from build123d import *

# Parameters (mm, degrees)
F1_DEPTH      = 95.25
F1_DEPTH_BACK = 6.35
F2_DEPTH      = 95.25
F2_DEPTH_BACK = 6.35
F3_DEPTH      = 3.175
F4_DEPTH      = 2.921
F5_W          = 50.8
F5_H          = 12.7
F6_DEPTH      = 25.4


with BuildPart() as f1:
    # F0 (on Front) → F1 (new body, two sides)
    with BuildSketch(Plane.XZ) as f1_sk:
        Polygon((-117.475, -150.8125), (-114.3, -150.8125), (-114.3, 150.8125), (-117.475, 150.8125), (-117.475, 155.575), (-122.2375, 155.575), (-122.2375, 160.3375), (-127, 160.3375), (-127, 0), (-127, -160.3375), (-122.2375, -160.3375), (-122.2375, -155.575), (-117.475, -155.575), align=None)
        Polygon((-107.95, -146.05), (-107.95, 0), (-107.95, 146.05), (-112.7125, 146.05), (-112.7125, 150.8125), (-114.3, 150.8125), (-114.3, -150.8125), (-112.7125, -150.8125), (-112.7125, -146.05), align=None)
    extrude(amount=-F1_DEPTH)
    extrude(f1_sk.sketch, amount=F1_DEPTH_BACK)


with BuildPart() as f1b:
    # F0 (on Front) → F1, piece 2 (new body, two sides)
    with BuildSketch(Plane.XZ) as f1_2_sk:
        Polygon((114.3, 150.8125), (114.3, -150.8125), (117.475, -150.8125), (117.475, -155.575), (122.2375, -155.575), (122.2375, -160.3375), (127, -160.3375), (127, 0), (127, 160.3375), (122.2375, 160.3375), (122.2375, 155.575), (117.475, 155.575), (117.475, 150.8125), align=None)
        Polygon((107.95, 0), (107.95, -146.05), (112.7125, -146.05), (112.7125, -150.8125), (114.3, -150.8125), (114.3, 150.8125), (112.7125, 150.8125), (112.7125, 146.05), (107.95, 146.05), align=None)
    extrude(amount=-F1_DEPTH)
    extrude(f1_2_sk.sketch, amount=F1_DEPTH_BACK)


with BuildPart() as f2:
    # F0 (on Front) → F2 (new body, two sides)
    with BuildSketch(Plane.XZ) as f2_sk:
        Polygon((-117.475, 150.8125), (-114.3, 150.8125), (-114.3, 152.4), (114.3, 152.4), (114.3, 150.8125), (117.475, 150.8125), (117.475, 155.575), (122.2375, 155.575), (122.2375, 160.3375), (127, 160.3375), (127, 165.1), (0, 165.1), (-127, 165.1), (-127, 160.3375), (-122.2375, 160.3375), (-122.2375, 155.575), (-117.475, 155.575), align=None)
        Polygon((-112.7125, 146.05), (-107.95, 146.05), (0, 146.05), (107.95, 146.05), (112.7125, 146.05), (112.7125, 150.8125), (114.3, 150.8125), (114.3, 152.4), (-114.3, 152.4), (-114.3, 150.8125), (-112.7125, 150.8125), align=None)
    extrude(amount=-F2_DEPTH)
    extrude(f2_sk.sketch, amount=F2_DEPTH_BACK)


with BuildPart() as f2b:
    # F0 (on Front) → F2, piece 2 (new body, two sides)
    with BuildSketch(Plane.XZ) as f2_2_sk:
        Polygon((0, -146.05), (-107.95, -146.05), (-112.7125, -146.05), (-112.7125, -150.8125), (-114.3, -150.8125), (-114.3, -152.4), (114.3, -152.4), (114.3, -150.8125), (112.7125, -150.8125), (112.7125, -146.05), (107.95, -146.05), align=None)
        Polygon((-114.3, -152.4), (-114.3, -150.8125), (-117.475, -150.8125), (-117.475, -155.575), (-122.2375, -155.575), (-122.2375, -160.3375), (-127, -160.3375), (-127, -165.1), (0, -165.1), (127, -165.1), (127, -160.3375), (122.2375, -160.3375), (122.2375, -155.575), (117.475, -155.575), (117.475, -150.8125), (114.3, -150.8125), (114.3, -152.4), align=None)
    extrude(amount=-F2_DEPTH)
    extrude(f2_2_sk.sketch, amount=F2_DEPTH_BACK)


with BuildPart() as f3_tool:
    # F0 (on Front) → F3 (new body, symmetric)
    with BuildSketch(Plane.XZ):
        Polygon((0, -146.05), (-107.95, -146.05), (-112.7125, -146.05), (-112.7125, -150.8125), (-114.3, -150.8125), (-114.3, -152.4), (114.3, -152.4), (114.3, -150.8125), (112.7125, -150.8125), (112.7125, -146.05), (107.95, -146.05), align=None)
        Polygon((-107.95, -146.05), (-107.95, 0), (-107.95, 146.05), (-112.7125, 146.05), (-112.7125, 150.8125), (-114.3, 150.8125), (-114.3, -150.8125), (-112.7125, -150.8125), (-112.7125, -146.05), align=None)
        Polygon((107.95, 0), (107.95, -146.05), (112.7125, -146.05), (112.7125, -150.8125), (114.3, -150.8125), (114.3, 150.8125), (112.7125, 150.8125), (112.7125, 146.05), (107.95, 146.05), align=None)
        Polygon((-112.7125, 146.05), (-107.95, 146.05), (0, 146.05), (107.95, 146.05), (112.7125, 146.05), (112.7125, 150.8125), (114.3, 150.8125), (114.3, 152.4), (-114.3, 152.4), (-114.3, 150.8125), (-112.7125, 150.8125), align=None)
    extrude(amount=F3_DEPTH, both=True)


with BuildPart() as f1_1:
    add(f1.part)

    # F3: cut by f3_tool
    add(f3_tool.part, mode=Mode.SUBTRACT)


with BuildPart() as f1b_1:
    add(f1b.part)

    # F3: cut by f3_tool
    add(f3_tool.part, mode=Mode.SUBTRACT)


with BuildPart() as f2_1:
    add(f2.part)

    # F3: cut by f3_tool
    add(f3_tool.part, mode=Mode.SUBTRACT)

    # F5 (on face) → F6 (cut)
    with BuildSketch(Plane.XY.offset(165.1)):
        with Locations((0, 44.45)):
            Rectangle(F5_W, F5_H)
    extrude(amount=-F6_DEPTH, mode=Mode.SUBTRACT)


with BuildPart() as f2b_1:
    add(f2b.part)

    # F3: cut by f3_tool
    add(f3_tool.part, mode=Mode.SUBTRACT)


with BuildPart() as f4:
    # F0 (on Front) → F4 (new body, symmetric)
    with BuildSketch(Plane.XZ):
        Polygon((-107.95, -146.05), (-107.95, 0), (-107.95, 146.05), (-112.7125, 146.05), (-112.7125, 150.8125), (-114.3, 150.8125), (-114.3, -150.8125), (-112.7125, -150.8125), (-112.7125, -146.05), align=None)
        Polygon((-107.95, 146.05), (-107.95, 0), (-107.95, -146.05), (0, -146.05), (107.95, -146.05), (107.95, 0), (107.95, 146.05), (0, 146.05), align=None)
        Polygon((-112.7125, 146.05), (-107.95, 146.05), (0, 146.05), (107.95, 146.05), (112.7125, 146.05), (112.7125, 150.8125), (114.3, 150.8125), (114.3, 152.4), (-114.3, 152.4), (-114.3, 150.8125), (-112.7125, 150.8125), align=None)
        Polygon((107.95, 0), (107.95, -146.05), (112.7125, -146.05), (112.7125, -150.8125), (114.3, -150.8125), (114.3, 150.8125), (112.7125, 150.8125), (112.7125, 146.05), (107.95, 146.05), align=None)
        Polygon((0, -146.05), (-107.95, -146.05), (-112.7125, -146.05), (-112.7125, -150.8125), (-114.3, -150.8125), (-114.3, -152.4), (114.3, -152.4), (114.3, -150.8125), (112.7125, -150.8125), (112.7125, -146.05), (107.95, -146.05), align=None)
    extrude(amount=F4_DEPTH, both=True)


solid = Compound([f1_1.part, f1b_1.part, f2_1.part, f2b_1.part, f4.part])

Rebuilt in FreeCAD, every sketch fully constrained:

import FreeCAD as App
import Part
import Sketcher
Q = App.Units.Quantity

doc = App.newDocument("Part")
body = doc.addObject("PartDesign::Body", "Body")

sketch1 = body.newObject("Sketcher::SketchObject", "Sketch")
sketch1.AttachmentSupport = (doc.getObject("XZ_Plane"), [""])
sketch1.MapMode = "FlatFace"
sketch1.addGeometry(Part.LineSegment(App.Vector(-117.5, -150.8, 0), App.Vector(-112.7, -150.8, 0)), False)
sketch1.addGeometry(Part.LineSegment(App.Vector(-112.7, -150.8, 0), App.Vector(-112.7, -146.1, 0)), False)
sketch1.addGeometry(Part.LineSegment(App.Vector(-112.7, -146.1, 0), App.Vector(-108, -146.1, 0)), False)
sketch1.addGeometry(Part.LineSegment(App.Vector(-108, -146.1, 0), App.Vector(-108, 146.1, 0)), False)
sketch1.addGeometry(Part.LineSegment(App.Vector(-108, 146.1, 0), App.Vector(-112.7, 146.1, 0)), False)
sketch1.addGeometry(Part.LineSegment(App.Vector(-112.7, 146.1, 0), App.Vector(-112.7, 150.8, 0)), False)
sketch1.addGeometry(Part.LineSegment(App.Vector(-112.7, 150.8, 0), App.Vector(-117.5, 150.8, 0)), False)
sketch1.addGeometry(Part.LineSegment(App.Vector(-117.5, 150.8, 0), App.Vector(-117.5, 155.6, 0)), False)
sketch1.addGeometry(Part.LineSegment(App.Vector(-117.5, 155.6, 0), App.Vector(-122.2, 155.6, 0)), False)
sketch1.addGeometry(Part.LineSegment(App.Vector(-122.2, 155.6, 0), App.Vector(-122.2, 160.3, 0)), False)
sketch1.addGeometry(Part.LineSegment(App.Vector(-122.2, 160.3, 0), App.Vector(-127, 160.3, 0)), False)
sketch1.addGeometry(Part.LineSegment(App.Vector(-127, 160.3, 0), App.Vector(-127, -160.3, 0)), False)
sketch1.addGeometry(Part.LineSegment(App.Vector(-127, -160.3, 0), App.Vector(-122.2, -160.3, 0)), False)
sketch1.addGeometry(Part.LineSegment(App.Vector(-122.2, -160.3, 0), App.Vector(-122.2, -155.6, 0)), False)
sketch1.addGeometry(Part.LineSegment(App.Vector(-122.2, -155.6, 0), App.Vector(-117.5, -155.6, 0)), False)
sketch1.addGeometry(Part.LineSegment(App.Vector(-117.5, -155.6, 0), App.Vector(-117.5, -150.8, 0)), False)
sketch1.addConstraint(Sketcher.Constraint("Coincident", 0, 2, 1, 1))
sketch1.addConstraint(Sketcher.Constraint("Coincident", 1, 2, 2, 1))
sketch1.addConstraint(Sketcher.Constraint("Coincident", 2, 2, 3, 1))
sketch1.addConstraint(Sketcher.Constraint("Coincident", 3, 2, 4, 1))
sketch1.addConstraint(Sketcher.Constraint("Coincident", 4, 2, 5, 1))
sketch1.addConstraint(Sketcher.Constraint("Coincident", 5, 2, 6, 1))
sketch1.addConstraint(Sketcher.Constraint("Coincident", 6, 2, 7, 1))
sketch1.addConstraint(Sketcher.Constraint("Coincident", 7, 2, 8, 1))
sketch1.addConstraint(Sketcher.Constraint("Coincident", 8, 2, 9, 1))
sketch1.addConstraint(Sketcher.Constraint("Coincident", 9, 2, 10, 1))
sketch1.addConstraint(Sketcher.Constraint("Coincident", 10, 2, 11, 1))
sketch1.addConstraint(Sketcher.Constraint("Coincident", 11, 2, 12, 1))
sketch1.addConstraint(Sketcher.Constraint("Coincident", 12, 2, 13, 1))
sketch1.addConstraint(Sketcher.Constraint("Coincident", 13, 2, 14, 1))
sketch1.addConstraint(Sketcher.Constraint("Coincident", 14, 2, 15, 1))
sketch1.addConstraint(Sketcher.Constraint("Coincident", 15, 2, 0, 1))
sketch1.addConstraint(Sketcher.Constraint("Horizontal", 0))
sketch1.addConstraint(Sketcher.Constraint("Vertical", 1))
sketch1.addConstraint(Sketcher.Constraint("Horizontal", 2))
sketch1.addConstraint(Sketcher.Constraint("Vertical", 3))
sketch1.addConstraint(Sketcher.Constraint("Horizontal", 4))
sketch1.addConstraint(Sketcher.Constraint("Vertical", 5))
sketch1.addConstraint(Sketcher.Constraint("Horizontal", 6))
sketch1.addConstraint(Sketcher.Constraint("Vertical", 7))
sketch1.addConstraint(Sketcher.Constraint("Horizontal", 8))
sketch1.addConstraint(Sketcher.Constraint("Vertical", 9))
sketch1.addConstraint(Sketcher.Constraint("Horizontal", 10))
sketch1.addConstraint(Sketcher.Constraint("Vertical", 11))
sketch1.addConstraint(Sketcher.Constraint("Horizontal", 12))
sketch1.addConstraint(Sketcher.Constraint("Vertical", 13))
sketch1.addConstraint(Sketcher.Constraint("Horizontal", 14))
sketch1.addConstraint(Sketcher.Constraint("Vertical", 15))
sketch1.addConstraint(Sketcher.Constraint("Symmetric", 1, 2, 4, 2, -1))
sketch1.addConstraint(Sketcher.Constraint("Symmetric", 9, 2, 12, 2, -1))
sketch1.addConstraint(Sketcher.Constraint("Symmetric", 7, 2, 14, 2, -1))
sketch1.addConstraint(Sketcher.Constraint("Equal", 0, 2))
sketch1.addConstraint(Sketcher.Constraint("Equal", 6, 8))
sketch1.addConstraint(Sketcher.Constraint("Equal", 8, 10))
sketch1.addConstraint(Sketcher.Constraint("Equal", 14, 1))
sketch1.addConstraint(Sketcher.Constraint("Equal", 1, 5))
sketch1.addConstraint(Sketcher.Constraint("Equal", 5, 7))
sketch1.addConstraint(Sketcher.Constraint("Equal", 7, 9))
sketch1.addConstraint(Sketcher.Constraint("DistanceY", 3, 1, 3, 2, Q("11.5 in")))
sketch1.addConstraint(Sketcher.Constraint("DistanceX", 10, 2, -1, 1, Q("5 in")))
sketch1.addConstraint(Sketcher.Constraint("DistanceX", 0, 1, 0, 2, Q("0.1875 in")))
pad1 = body.newObject("PartDesign::Pad", "Pad")
pad1.Profile = sketch1
pad1.Type = "TwoLengths"
pad1.Length = Q("3.75 in")
pad1.Length2 = Q("0.25 in")
pad1.Reversed = True
body2 = doc.addObject("PartDesign::Body", "Body001")

sketch2 = body2.newObject("Sketcher::SketchObject", "Sketch001")
sketch2.AttachmentSupport = (doc.getObject("XZ_Plane001"), [""])
sketch2.MapMode = "FlatFace"
sketch2.addGeometry(Part.LineSegment(App.Vector(117.5, -150.8, 0), App.Vector(117.5, -155.6, 0)), False)
sketch2.addGeometry(Part.LineSegment(App.Vector(117.5, -155.6, 0), App.Vector(122.2, -155.6, 0)), False)
sketch2.addGeometry(Part.LineSegment(App.Vector(122.2, -155.6, 0), App.Vector(122.2, -160.3, 0)), False)
sketch2.addGeometry(Part.LineSegment(App.Vector(122.2, -160.3, 0), App.Vector(127, -160.3, 0)), False)
sketch2.addGeometry(Part.LineSegment(App.Vector(127, -160.3, 0), App.Vector(127, 160.3, 0)), False)
sketch2.addGeometry(Part.LineSegment(App.Vector(127, 160.3, 0), App.Vector(122.2, 160.3, 0)), False)
sketch2.addGeometry(Part.LineSegment(App.Vector(122.2, 160.3, 0), App.Vector(122.2, 155.6, 0)), False)
sketch2.addGeometry(Part.LineSegment(App.Vector(122.2, 155.6, 0), App.Vector(117.5, 155.6, 0)), False)
sketch2.addGeometry(Part.LineSegment(App.Vector(117.5, 155.6, 0), App.Vector(117.5, 150.8, 0)), False)
sketch2.addGeometry(Part.LineSegment(App.Vector(117.5, 150.8, 0), App.Vector(112.7, 150.8, 0)), False)
sketch2.addGeometry(Part.LineSegment(App.Vector(112.7, 150.8, 0), App.Vector(112.7, 146.1, 0)), False)
sketch2.addGeometry(Part.LineSegment(App.Vector(112.7, 146.1, 0), App.Vector(108, 146.1, 0)), False)
sketch2.addGeometry(Part.LineSegment(App.Vector(108, 146.1, 0), App.Vector(108, -146.1, 0)), False)
sketch2.addGeometry(Part.LineSegment(App.Vector(108, -146.1, 0), App.Vector(112.7, -146.1, 0)), False)
sketch2.addGeometry(Part.LineSegment(App.Vector(112.7, -146.1, 0), App.Vector(112.7, -150.8, 0)), False)
sketch2.addGeometry(Part.LineSegment(App.Vector(112.7, -150.8, 0), App.Vector(117.5, -150.8, 0)), False)
sketch2.addConstraint(Sketcher.Constraint("Coincident", 0, 2, 1, 1))
sketch2.addConstraint(Sketcher.Constraint("Coincident", 1, 2, 2, 1))
sketch2.addConstraint(Sketcher.Constraint("Coincident", 2, 2, 3, 1))
sketch2.addConstraint(Sketcher.Constraint("Coincident", 3, 2, 4, 1))
sketch2.addConstraint(Sketcher.Constraint("Coincident", 4, 2, 5, 1))
sketch2.addConstraint(Sketcher.Constraint("Coincident", 5, 2, 6, 1))
sketch2.addConstraint(Sketcher.Constraint("Coincident", 6, 2, 7, 1))
sketch2.addConstraint(Sketcher.Constraint("Coincident", 7, 2, 8, 1))
sketch2.addConstraint(Sketcher.Constraint("Coincident", 8, 2, 9, 1))
sketch2.addConstraint(Sketcher.Constraint("Coincident", 9, 2, 10, 1))
sketch2.addConstraint(Sketcher.Constraint("Coincident", 10, 2, 11, 1))
sketch2.addConstraint(Sketcher.Constraint("Coincident", 11, 2, 12, 1))
sketch2.addConstraint(Sketcher.Constraint("Coincident", 12, 2, 13, 1))
sketch2.addConstraint(Sketcher.Constraint("Coincident", 13, 2, 14, 1))
sketch2.addConstraint(Sketcher.Constraint("Coincident", 14, 2, 15, 1))
sketch2.addConstraint(Sketcher.Constraint("Coincident", 15, 2, 0, 1))
sketch2.addConstraint(Sketcher.Constraint("Vertical", 0))
sketch2.addConstraint(Sketcher.Constraint("Horizontal", 1))
sketch2.addConstraint(Sketcher.Constraint("Vertical", 2))
sketch2.addConstraint(Sketcher.Constraint("Horizontal", 3))
sketch2.addConstraint(Sketcher.Constraint("Vertical", 4))
sketch2.addConstraint(Sketcher.Constraint("Horizontal", 5))
sketch2.addConstraint(Sketcher.Constraint("Vertical", 6))
sketch2.addConstraint(Sketcher.Constraint("Horizontal", 7))
sketch2.addConstraint(Sketcher.Constraint("Vertical", 8))
sketch2.addConstraint(Sketcher.Constraint("Horizontal", 9))
sketch2.addConstraint(Sketcher.Constraint("Vertical", 10))
sketch2.addConstraint(Sketcher.Constraint("Horizontal", 11))
sketch2.addConstraint(Sketcher.Constraint("Vertical", 12))
sketch2.addConstraint(Sketcher.Constraint("Horizontal", 13))
sketch2.addConstraint(Sketcher.Constraint("Vertical", 14))
sketch2.addConstraint(Sketcher.Constraint("Horizontal", 15))
sketch2.addConstraint(Sketcher.Constraint("Symmetric", 2, 2, 5, 2, -1))
sketch2.addConstraint(Sketcher.Constraint("Symmetric", 0, 2, 7, 2, -1))
sketch2.addConstraint(Sketcher.Constraint("Symmetric", 10, 2, 13, 2, -1))
sketch2.addConstraint(Sketcher.Constraint("Equal", 1, 3))
sketch2.addConstraint(Sketcher.Constraint("Equal", 7, 9))
sketch2.addConstraint(Sketcher.Constraint("Equal", 9, 11))
sketch2.addConstraint(Sketcher.Constraint("Equal", 15, 0))
sketch2.addConstraint(Sketcher.Constraint("Equal", 0, 2))
sketch2.addConstraint(Sketcher.Constraint("Equal", 6, 8))
sketch2.addConstraint(Sketcher.Constraint("Equal", 8, 10))
sketch2.addConstraint(Sketcher.Constraint("DistanceY", 12, 2, 12, 1, Q("11.5 in")))
sketch2.addConstraint(Sketcher.Constraint("DistanceX", -1, 1, 3, 2, Q("5 in")))
sketch2.addConstraint(Sketcher.Constraint("DistanceX", 1, 1, 1, 2, Q("0.1875 in")))
pad2 = body2.newObject("PartDesign::Pad", "Pad001")
pad2.Profile = sketch2
pad2.Type = "TwoLengths"
pad2.Length = Q("3.75 in")
pad2.Length2 = Q("0.25 in")
pad2.Reversed = True
body3 = doc.addObject("PartDesign::Body", "Body002")

sketch3 = body3.newObject("Sketcher::SketchObject", "Sketch002")
sketch3.AttachmentSupport = (doc.getObject("XZ_Plane002"), [""])
sketch3.MapMode = "FlatFace"
sketch3.addGeometry(Part.LineSegment(App.Vector(-117.5, 150.8, 0), App.Vector(-112.7, 150.8, 0)), False)
sketch3.addGeometry(Part.LineSegment(App.Vector(-112.7, 150.8, 0), App.Vector(-112.7, 146.1, 0)), False)
sketch3.addGeometry(Part.LineSegment(App.Vector(-112.7, 146.1, 0), App.Vector(112.7, 146.1, 0)), False)
sketch3.addGeometry(Part.LineSegment(App.Vector(112.7, 146.1, 0), App.Vector(112.7, 150.8, 0)), False)
sketch3.addGeometry(Part.LineSegment(App.Vector(112.7, 150.8, 0), App.Vector(117.5, 150.8, 0)), False)
sketch3.addGeometry(Part.LineSegment(App.Vector(117.5, 150.8, 0), App.Vector(117.5, 155.6, 0)), False)
sketch3.addGeometry(Part.LineSegment(App.Vector(117.5, 155.6, 0), App.Vector(122.2, 155.6, 0)), False)
sketch3.addGeometry(Part.LineSegment(App.Vector(122.2, 155.6, 0), App.Vector(122.2, 160.3, 0)), False)
sketch3.addGeometry(Part.LineSegment(App.Vector(122.2, 160.3, 0), App.Vector(127, 160.3, 0)), False)
sketch3.addGeometry(Part.LineSegment(App.Vector(127, 160.3, 0), App.Vector(127, 165.1, 0)), False)
sketch3.addGeometry(Part.LineSegment(App.Vector(127, 165.1, 0), App.Vector(-127, 165.1, 0)), False)
sketch3.addGeometry(Part.LineSegment(App.Vector(-127, 165.1, 0), App.Vector(-127, 160.3, 0)), False)
sketch3.addGeometry(Part.LineSegment(App.Vector(-127, 160.3, 0), App.Vector(-122.2, 160.3, 0)), False)
sketch3.addGeometry(Part.LineSegment(App.Vector(-122.2, 160.3, 0), App.Vector(-122.2, 155.6, 0)), False)
sketch3.addGeometry(Part.LineSegment(App.Vector(-122.2, 155.6, 0), App.Vector(-117.5, 155.6, 0)), False)
sketch3.addGeometry(Part.LineSegment(App.Vector(-117.5, 155.6, 0), App.Vector(-117.5, 150.8, 0)), False)
sketch3.addConstraint(Sketcher.Constraint("Coincident", 0, 2, 1, 1))
sketch3.addConstraint(Sketcher.Constraint("Coincident", 1, 2, 2, 1))
sketch3.addConstraint(Sketcher.Constraint("Coincident", 2, 2, 3, 1))
sketch3.addConstraint(Sketcher.Constraint("Coincident", 3, 2, 4, 1))
sketch3.addConstraint(Sketcher.Constraint("Coincident", 4, 2, 5, 1))
sketch3.addConstraint(Sketcher.Constraint("Coincident", 5, 2, 6, 1))
sketch3.addConstraint(Sketcher.Constraint("Coincident", 6, 2, 7, 1))
sketch3.addConstraint(Sketcher.Constraint("Coincident", 7, 2, 8, 1))
sketch3.addConstraint(Sketcher.Constraint("Coincident", 8, 2, 9, 1))
sketch3.addConstraint(Sketcher.Constraint("Coincident", 9, 2, 10, 1))
sketch3.addConstraint(Sketcher.Constraint("Coincident", 10, 2, 11, 1))
sketch3.addConstraint(Sketcher.Constraint("Coincident", 11, 2, 12, 1))
sketch3.addConstraint(Sketcher.Constraint("Coincident", 12, 2, 13, 1))
sketch3.addConstraint(Sketcher.Constraint("Coincident", 13, 2, 14, 1))
sketch3.addConstraint(Sketcher.Constraint("Coincident", 14, 2, 15, 1))
sketch3.addConstraint(Sketcher.Constraint("Coincident", 15, 2, 0, 1))
sketch3.addConstraint(Sketcher.Constraint("Horizontal", 0))
sketch3.addConstraint(Sketcher.Constraint("Vertical", 1))
sketch3.addConstraint(Sketcher.Constraint("Horizontal", 2))
sketch3.addConstraint(Sketcher.Constraint("Vertical", 3))
sketch3.addConstraint(Sketcher.Constraint("Horizontal", 4))
sketch3.addConstraint(Sketcher.Constraint("Vertical", 5))
sketch3.addConstraint(Sketcher.Constraint("Horizontal", 6))
sketch3.addConstraint(Sketcher.Constraint("Vertical", 7))
sketch3.addConstraint(Sketcher.Constraint("Horizontal", 8))
sketch3.addConstraint(Sketcher.Constraint("Vertical", 9))
sketch3.addConstraint(Sketcher.Constraint("Horizontal", 10))
sketch3.addConstraint(Sketcher.Constraint("Vertical", 11))
sketch3.addConstraint(Sketcher.Constraint("Horizontal", 12))
sketch3.addConstraint(Sketcher.Constraint("Vertical", 13))
sketch3.addConstraint(Sketcher.Constraint("Horizontal", 14))
sketch3.addConstraint(Sketcher.Constraint("Vertical", 15))
sketch3.addConstraint(Sketcher.Constraint("Symmetric", 0, 2, 3, 2, -2))
sketch3.addConstraint(Sketcher.Constraint("Symmetric", 8, 2, 11, 2, -2))
sketch3.addConstraint(Sketcher.Constraint("Symmetric", 6, 2, 13, 2, -2))
sketch3.addConstraint(Sketcher.Constraint("Equal", 0, 4))
sketch3.addConstraint(Sketcher.Constraint("Equal", 4, 6))
sketch3.addConstraint(Sketcher.Constraint("Equal", 6, 8))
sketch3.addConstraint(Sketcher.Constraint("Equal", 14, 1))
sketch3.addConstraint(Sketcher.Constraint("Equal", 3, 5))
sketch3.addConstraint(Sketcher.Constraint("Equal", 5, 7))
sketch3.addConstraint(Sketcher.Constraint("Equal", 7, 9))
sketch3.addConstraint(Sketcher.Constraint("DistanceX", 10, 2, 10, 1, Q("10 in")))
sketch3.addConstraint(Sketcher.Constraint("DistanceY", -1, 1, 9, 2, Q("6.5 in")))
sketch3.addConstraint(Sketcher.Constraint("DistanceX", 0, 1, 0, 2, Q("0.1875 in")))
pad3 = body3.newObject("PartDesign::Pad", "Pad002")
pad3.Profile = sketch3
pad3.Type = "TwoLengths"
pad3.Length = Q("3.75 in")
pad3.Length2 = Q("0.25 in")
pad3.Reversed = True
body4 = doc.addObject("PartDesign::Body", "Body003")

sketch4 = body4.newObject("Sketcher::SketchObject", "Sketch003")
sketch4.AttachmentSupport = (doc.getObject("XZ_Plane003"), [""])
sketch4.MapMode = "FlatFace"
sketch4.addGeometry(Part.LineSegment(App.Vector(-112.7, -146.1, 0), App.Vector(-112.7, -150.8, 0)), False)
sketch4.addGeometry(Part.LineSegment(App.Vector(-112.7, -150.8, 0), App.Vector(-117.5, -150.8, 0)), False)
sketch4.addGeometry(Part.LineSegment(App.Vector(-117.5, -150.8, 0), App.Vector(-117.5, -155.6, 0)), False)
sketch4.addGeometry(Part.LineSegment(App.Vector(-117.5, -155.6, 0), App.Vector(-122.2, -155.6, 0)), False)
sketch4.addGeometry(Part.LineSegment(App.Vector(-122.2, -155.6, 0), App.Vector(-122.2, -160.3, 0)), False)
sketch4.addGeometry(Part.LineSegment(App.Vector(-122.2, -160.3, 0), App.Vector(-127, -160.3, 0)), False)
sketch4.addGeometry(Part.LineSegment(App.Vector(-127, -160.3, 0), App.Vector(-127, -165.1, 0)), False)
sketch4.addGeometry(Part.LineSegment(App.Vector(-127, -165.1, 0), App.Vector(127, -165.1, 0)), False)
sketch4.addGeometry(Part.LineSegment(App.Vector(127, -165.1, 0), App.Vector(127, -160.3, 0)), False)
sketch4.addGeometry(Part.LineSegment(App.Vector(127, -160.3, 0), App.Vector(122.2, -160.3, 0)), False)
sketch4.addGeometry(Part.LineSegment(App.Vector(122.2, -160.3, 0), App.Vector(122.2, -155.6, 0)), False)
sketch4.addGeometry(Part.LineSegment(App.Vector(122.2, -155.6, 0), App.Vector(117.5, -155.6, 0)), False)
sketch4.addGeometry(Part.LineSegment(App.Vector(117.5, -155.6, 0), App.Vector(117.5, -150.8, 0)), False)
sketch4.addGeometry(Part.LineSegment(App.Vector(117.5, -150.8, 0), App.Vector(112.7, -150.8, 0)), False)
sketch4.addGeometry(Part.LineSegment(App.Vector(112.7, -150.8, 0), App.Vector(112.7, -146.1, 0)), False)
sketch4.addGeometry(Part.LineSegment(App.Vector(112.7, -146.1, 0), App.Vector(-112.7, -146.1, 0)), False)
sketch4.addConstraint(Sketcher.Constraint("Coincident", 0, 2, 1, 1))
sketch4.addConstraint(Sketcher.Constraint("Coincident", 1, 2, 2, 1))
sketch4.addConstraint(Sketcher.Constraint("Coincident", 2, 2, 3, 1))
sketch4.addConstraint(Sketcher.Constraint("Coincident", 3, 2, 4, 1))
sketch4.addConstraint(Sketcher.Constraint("Coincident", 4, 2, 5, 1))
sketch4.addConstraint(Sketcher.Constraint("Coincident", 5, 2, 6, 1))
sketch4.addConstraint(Sketcher.Constraint("Coincident", 6, 2, 7, 1))
sketch4.addConstraint(Sketcher.Constraint("Coincident", 7, 2, 8, 1))
sketch4.addConstraint(Sketcher.Constraint("Coincident", 8, 2, 9, 1))
sketch4.addConstraint(Sketcher.Constraint("Coincident", 9, 2, 10, 1))
sketch4.addConstraint(Sketcher.Constraint("Coincident", 10, 2, 11, 1))
sketch4.addConstraint(Sketcher.Constraint("Coincident", 11, 2, 12, 1))
sketch4.addConstraint(Sketcher.Constraint("Coincident", 12, 2, 13, 1))
sketch4.addConstraint(Sketcher.Constraint("Coincident", 13, 2, 14, 1))
sketch4.addConstraint(Sketcher.Constraint("Coincident", 14, 2, 15, 1))
sketch4.addConstraint(Sketcher.Constraint("Coincident", 15, 2, 0, 1))
sketch4.addConstraint(Sketcher.Constraint("Vertical", 0))
sketch4.addConstraint(Sketcher.Constraint("Horizontal", 1))
sketch4.addConstraint(Sketcher.Constraint("Vertical", 2))
sketch4.addConstraint(Sketcher.Constraint("Horizontal", 3))
sketch4.addConstraint(Sketcher.Constraint("Vertical", 4))
sketch4.addConstraint(Sketcher.Constraint("Horizontal", 5))
sketch4.addConstraint(Sketcher.Constraint("Vertical", 6))
sketch4.addConstraint(Sketcher.Constraint("Horizontal", 7))
sketch4.addConstraint(Sketcher.Constraint("Vertical", 8))
sketch4.addConstraint(Sketcher.Constraint("Horizontal", 9))
sketch4.addConstraint(Sketcher.Constraint("Vertical", 10))
sketch4.addConstraint(Sketcher.Constraint("Horizontal", 11))
sketch4.addConstraint(Sketcher.Constraint("Vertical", 12))
sketch4.addConstraint(Sketcher.Constraint("Horizontal", 13))
sketch4.addConstraint(Sketcher.Constraint("Vertical", 14))
sketch4.addConstraint(Sketcher.Constraint("Horizontal", 15))
sketch4.addConstraint(Sketcher.Constraint("Symmetric", 5, 2, 8, 2, -2))
sketch4.addConstraint(Sketcher.Constraint("Symmetric", 3, 2, 10, 2, -2))
sketch4.addConstraint(Sketcher.Constraint("Symmetric", 1, 2, 12, 2, -2))
sketch4.addConstraint(Sketcher.Constraint("Equal", 1, 3))
sketch4.addConstraint(Sketcher.Constraint("Equal", 3, 5))
sketch4.addConstraint(Sketcher.Constraint("Equal", 11, 13))
sketch4.addConstraint(Sketcher.Constraint("Equal", 13, 0))
sketch4.addConstraint(Sketcher.Constraint("Equal", 0, 2))
sketch4.addConstraint(Sketcher.Constraint("Equal", 2, 4))
sketch4.addConstraint(Sketcher.Constraint("Equal", 4, 6))
sketch4.addConstraint(Sketcher.Constraint("DistanceX", 7, 1, 7, 2, Q("10 in")))
sketch4.addConstraint(Sketcher.Constraint("DistanceY", 6, 2, -1, 1, Q("6.5 in")))
sketch4.addConstraint(Sketcher.Constraint("DistanceX", 1, 2, 1, 1, Q("0.1875 in")))
pad4 = body4.newObject("PartDesign::Pad", "Pad003")
pad4.Profile = sketch4
pad4.Type = "TwoLengths"
pad4.Length = Q("3.75 in")
pad4.Length2 = Q("0.25 in")
pad4.Reversed = True
body5 = doc.addObject("PartDesign::Body", "Body004")

sketch5 = body5.newObject("Sketcher::SketchObject", "Sketch004")
sketch5.AttachmentSupport = (doc.getObject("XZ_Plane004"), [""])
sketch5.MapMode = "FlatFace"
sketch5.addGeometry(Part.LineSegment(App.Vector(-114, -152, 0), App.Vector(114, -152, 0)), False)
sketch5.addGeometry(Part.LineSegment(App.Vector(114, -152, 0), App.Vector(114, 152, 0)), False)
sketch5.addGeometry(Part.LineSegment(App.Vector(114, 152, 0), App.Vector(-114, 152, 0)), False)
sketch5.addGeometry(Part.LineSegment(App.Vector(-114, 152, 0), App.Vector(-114, -152, 0)), False)
sketch5.addGeometry(Part.LineSegment(App.Vector(108, 146, 0), App.Vector(108, -146, 0)), False)
sketch5.addGeometry(Part.LineSegment(App.Vector(108, -146, 0), App.Vector(-108, -146, 0)), False)
sketch5.addGeometry(Part.LineSegment(App.Vector(-108, -146, 0), App.Vector(-108, 146, 0)), False)
sketch5.addGeometry(Part.LineSegment(App.Vector(-108, 146, 0), App.Vector(108, 146, 0)), False)
sketch5.addConstraint(Sketcher.Constraint("Coincident", 0, 2, 1, 1))
sketch5.addConstraint(Sketcher.Constraint("Coincident", 1, 2, 2, 1))
sketch5.addConstraint(Sketcher.Constraint("Coincident", 2, 2, 3, 1))
sketch5.addConstraint(Sketcher.Constraint("Coincident", 3, 2, 0, 1))
sketch5.addConstraint(Sketcher.Constraint("Coincident", 4, 2, 5, 1))
sketch5.addConstraint(Sketcher.Constraint("Coincident", 5, 2, 6, 1))
sketch5.addConstraint(Sketcher.Constraint("Coincident", 6, 2, 7, 1))
sketch5.addConstraint(Sketcher.Constraint("Coincident", 7, 2, 4, 1))
sketch5.addConstraint(Sketcher.Constraint("Horizontal", 0))
sketch5.addConstraint(Sketcher.Constraint("Vertical", 1))
sketch5.addConstraint(Sketcher.Constraint("Horizontal", 2))
sketch5.addConstraint(Sketcher.Constraint("Vertical", 3))
sketch5.addConstraint(Sketcher.Constraint("Vertical", 4))
sketch5.addConstraint(Sketcher.Constraint("Horizontal", 5))
sketch5.addConstraint(Sketcher.Constraint("Vertical", 6))
sketch5.addConstraint(Sketcher.Constraint("Horizontal", 7))
sketch5.addConstraint(Sketcher.Constraint("Symmetric", 0, 2, 2, 2, -1, 1))
sketch5.addConstraint(Sketcher.Constraint("Symmetric", 4, 2, 6, 2, -1, 1))
sketch5.addConstraint(Sketcher.Constraint("DistanceX", 0, 1, 0, 2, Q("9 in")))
sketch5.addConstraint(Sketcher.Constraint("DistanceY", 1, 1, 1, 2, Q("12 in")))
sketch5.addConstraint(Sketcher.Constraint("DistanceX", 5, 2, 5, 1, Q("8.5 in")))
sketch5.addConstraint(Sketcher.Constraint("DistanceY", 4, 2, 4, 1, Q("11.5 in")))
pad5 = body5.newObject("PartDesign::Pad", "Pad004")
pad5.Profile = sketch5
pad5.Length = Q("0.25 in")
pad5.Midplane = True
doc.recompute()

body6 = doc.addObject("PartDesign::Body", "Body005")
body6.BaseFeature = body5
boolean = body.newObject("PartDesign::Boolean", "Boolean")
boolean.Type = "Cut"
boolean.addObjects([body6])
doc.recompute()

body7 = doc.addObject("PartDesign::Body", "Body006")
body7.BaseFeature = body5
boolean2 = body2.newObject("PartDesign::Boolean", "Boolean001")
boolean2.Type = "Cut"
boolean2.addObjects([body7])
doc.recompute()

body8 = doc.addObject("PartDesign::Body", "Body007")
body8.BaseFeature = body5
boolean3 = body3.newObject("PartDesign::Boolean", "Boolean002")
boolean3.Type = "Cut"
boolean3.addObjects([body8])
doc.recompute()

sketch6 = body3.newObject("Sketcher::SketchObject", "Sketch005")
sketch6.AttachmentSupport = (doc.getObject("XY_Plane002"), [""])
sketch6.MapMode = "FlatFace"
sketch6.AttachmentOffset = App.Placement(App.Vector(0, 0, 6.5 * 25.4), App.Rotation())
sketch6.addGeometry(Part.LineSegment(App.Vector(-25, 51, 0), App.Vector(-25, 38, 0)), False)
sketch6.addGeometry(Part.LineSegment(App.Vector(-25, 38, 0), App.Vector(25, 38, 0)), False)
sketch6.addGeometry(Part.LineSegment(App.Vector(25, 38, 0), App.Vector(25, 51, 0)), False)
sketch6.addGeometry(Part.LineSegment(App.Vector(25, 51, 0), App.Vector(-25, 51, 0)), False)
sketch6.addConstraint(Sketcher.Constraint("Coincident", 0, 2, 1, 1))
sketch6.addConstraint(Sketcher.Constraint("Coincident", 1, 2, 2, 1))
sketch6.addConstraint(Sketcher.Constraint("Coincident", 2, 2, 3, 1))
sketch6.addConstraint(Sketcher.Constraint("Coincident", 3, 2, 0, 1))
sketch6.addConstraint(Sketcher.Constraint("Vertical", 0))
sketch6.addConstraint(Sketcher.Constraint("Horizontal", 1))
sketch6.addConstraint(Sketcher.Constraint("Vertical", 2))
sketch6.addConstraint(Sketcher.Constraint("Horizontal", 3))
sketch6.addConstraint(Sketcher.Constraint("DistanceX", 1, 1, 1, 2, Q("2 in")))
sketch6.addConstraint(Sketcher.Constraint("DistanceY", 0, 2, 0, 1, Q("0.5 in")))
sketch6.addConstraint(Sketcher.Constraint("DistanceX", 0, 2, -1, 1, Q("1 in")))
sketch6.addConstraint(Sketcher.Constraint("DistanceY", -1, 1, 2, 2, Q("2 in")))
pocket1 = body3.newObject("PartDesign::Pocket", "Pocket")
pocket1.Profile = sketch6
pocket1.Length = Q("1 in")
doc.recompute()

boolean4 = body4.newObject("PartDesign::Boolean", "Boolean003")
boolean4.Type = "Cut"
boolean4.addObjects([body5])
body9 = doc.addObject("PartDesign::Body", "Body008")

sketch7 = body9.newObject("Sketcher::SketchObject", "Sketch006")
sketch7.AttachmentSupport = (doc.getObject("XZ_Plane008"), [""])
sketch7.MapMode = "FlatFace"
sketch7.addGeometry(Part.LineSegment(App.Vector(114, 152, 0), App.Vector(-114, 152, 0)), False)
sketch7.addGeometry(Part.LineSegment(App.Vector(-114, 152, 0), App.Vector(-114, -152, 0)), False)
sketch7.addGeometry(Part.LineSegment(App.Vector(-114, -152, 0), App.Vector(114, -152, 0)), False)
sketch7.addGeometry(Part.LineSegment(App.Vector(114, -152, 0), App.Vector(114, 152, 0)), False)
sketch7.addConstraint(Sketcher.Constraint("Coincident", 0, 2, 1, 1))
sketch7.addConstraint(Sketcher.Constraint("Coincident", 1, 2, 2, 1))
sketch7.addConstraint(Sketcher.Constraint("Coincident", 2, 2, 3, 1))
sketch7.addConstraint(Sketcher.Constraint("Coincident", 3, 2, 0, 1))
sketch7.addConstraint(Sketcher.Constraint("Horizontal", 0))
sketch7.addConstraint(Sketcher.Constraint("Vertical", 1))
sketch7.addConstraint(Sketcher.Constraint("Horizontal", 2))
sketch7.addConstraint(Sketcher.Constraint("Vertical", 3))
sketch7.addConstraint(Sketcher.Constraint("Symmetric", 0, 2, 2, 2, -1, 1))
sketch7.addConstraint(Sketcher.Constraint("DistanceX", 0, 2, 0, 1, Q("9 in")))
sketch7.addConstraint(Sketcher.Constraint("DistanceY", 1, 2, 1, 1, Q("12 in")))
pad6 = body9.newObject("PartDesign::Pad", "Pad005")
pad6.Profile = sketch7
pad6.Length = Q("0.23 in")
pad6.Midplane = True

doc.recompute()
